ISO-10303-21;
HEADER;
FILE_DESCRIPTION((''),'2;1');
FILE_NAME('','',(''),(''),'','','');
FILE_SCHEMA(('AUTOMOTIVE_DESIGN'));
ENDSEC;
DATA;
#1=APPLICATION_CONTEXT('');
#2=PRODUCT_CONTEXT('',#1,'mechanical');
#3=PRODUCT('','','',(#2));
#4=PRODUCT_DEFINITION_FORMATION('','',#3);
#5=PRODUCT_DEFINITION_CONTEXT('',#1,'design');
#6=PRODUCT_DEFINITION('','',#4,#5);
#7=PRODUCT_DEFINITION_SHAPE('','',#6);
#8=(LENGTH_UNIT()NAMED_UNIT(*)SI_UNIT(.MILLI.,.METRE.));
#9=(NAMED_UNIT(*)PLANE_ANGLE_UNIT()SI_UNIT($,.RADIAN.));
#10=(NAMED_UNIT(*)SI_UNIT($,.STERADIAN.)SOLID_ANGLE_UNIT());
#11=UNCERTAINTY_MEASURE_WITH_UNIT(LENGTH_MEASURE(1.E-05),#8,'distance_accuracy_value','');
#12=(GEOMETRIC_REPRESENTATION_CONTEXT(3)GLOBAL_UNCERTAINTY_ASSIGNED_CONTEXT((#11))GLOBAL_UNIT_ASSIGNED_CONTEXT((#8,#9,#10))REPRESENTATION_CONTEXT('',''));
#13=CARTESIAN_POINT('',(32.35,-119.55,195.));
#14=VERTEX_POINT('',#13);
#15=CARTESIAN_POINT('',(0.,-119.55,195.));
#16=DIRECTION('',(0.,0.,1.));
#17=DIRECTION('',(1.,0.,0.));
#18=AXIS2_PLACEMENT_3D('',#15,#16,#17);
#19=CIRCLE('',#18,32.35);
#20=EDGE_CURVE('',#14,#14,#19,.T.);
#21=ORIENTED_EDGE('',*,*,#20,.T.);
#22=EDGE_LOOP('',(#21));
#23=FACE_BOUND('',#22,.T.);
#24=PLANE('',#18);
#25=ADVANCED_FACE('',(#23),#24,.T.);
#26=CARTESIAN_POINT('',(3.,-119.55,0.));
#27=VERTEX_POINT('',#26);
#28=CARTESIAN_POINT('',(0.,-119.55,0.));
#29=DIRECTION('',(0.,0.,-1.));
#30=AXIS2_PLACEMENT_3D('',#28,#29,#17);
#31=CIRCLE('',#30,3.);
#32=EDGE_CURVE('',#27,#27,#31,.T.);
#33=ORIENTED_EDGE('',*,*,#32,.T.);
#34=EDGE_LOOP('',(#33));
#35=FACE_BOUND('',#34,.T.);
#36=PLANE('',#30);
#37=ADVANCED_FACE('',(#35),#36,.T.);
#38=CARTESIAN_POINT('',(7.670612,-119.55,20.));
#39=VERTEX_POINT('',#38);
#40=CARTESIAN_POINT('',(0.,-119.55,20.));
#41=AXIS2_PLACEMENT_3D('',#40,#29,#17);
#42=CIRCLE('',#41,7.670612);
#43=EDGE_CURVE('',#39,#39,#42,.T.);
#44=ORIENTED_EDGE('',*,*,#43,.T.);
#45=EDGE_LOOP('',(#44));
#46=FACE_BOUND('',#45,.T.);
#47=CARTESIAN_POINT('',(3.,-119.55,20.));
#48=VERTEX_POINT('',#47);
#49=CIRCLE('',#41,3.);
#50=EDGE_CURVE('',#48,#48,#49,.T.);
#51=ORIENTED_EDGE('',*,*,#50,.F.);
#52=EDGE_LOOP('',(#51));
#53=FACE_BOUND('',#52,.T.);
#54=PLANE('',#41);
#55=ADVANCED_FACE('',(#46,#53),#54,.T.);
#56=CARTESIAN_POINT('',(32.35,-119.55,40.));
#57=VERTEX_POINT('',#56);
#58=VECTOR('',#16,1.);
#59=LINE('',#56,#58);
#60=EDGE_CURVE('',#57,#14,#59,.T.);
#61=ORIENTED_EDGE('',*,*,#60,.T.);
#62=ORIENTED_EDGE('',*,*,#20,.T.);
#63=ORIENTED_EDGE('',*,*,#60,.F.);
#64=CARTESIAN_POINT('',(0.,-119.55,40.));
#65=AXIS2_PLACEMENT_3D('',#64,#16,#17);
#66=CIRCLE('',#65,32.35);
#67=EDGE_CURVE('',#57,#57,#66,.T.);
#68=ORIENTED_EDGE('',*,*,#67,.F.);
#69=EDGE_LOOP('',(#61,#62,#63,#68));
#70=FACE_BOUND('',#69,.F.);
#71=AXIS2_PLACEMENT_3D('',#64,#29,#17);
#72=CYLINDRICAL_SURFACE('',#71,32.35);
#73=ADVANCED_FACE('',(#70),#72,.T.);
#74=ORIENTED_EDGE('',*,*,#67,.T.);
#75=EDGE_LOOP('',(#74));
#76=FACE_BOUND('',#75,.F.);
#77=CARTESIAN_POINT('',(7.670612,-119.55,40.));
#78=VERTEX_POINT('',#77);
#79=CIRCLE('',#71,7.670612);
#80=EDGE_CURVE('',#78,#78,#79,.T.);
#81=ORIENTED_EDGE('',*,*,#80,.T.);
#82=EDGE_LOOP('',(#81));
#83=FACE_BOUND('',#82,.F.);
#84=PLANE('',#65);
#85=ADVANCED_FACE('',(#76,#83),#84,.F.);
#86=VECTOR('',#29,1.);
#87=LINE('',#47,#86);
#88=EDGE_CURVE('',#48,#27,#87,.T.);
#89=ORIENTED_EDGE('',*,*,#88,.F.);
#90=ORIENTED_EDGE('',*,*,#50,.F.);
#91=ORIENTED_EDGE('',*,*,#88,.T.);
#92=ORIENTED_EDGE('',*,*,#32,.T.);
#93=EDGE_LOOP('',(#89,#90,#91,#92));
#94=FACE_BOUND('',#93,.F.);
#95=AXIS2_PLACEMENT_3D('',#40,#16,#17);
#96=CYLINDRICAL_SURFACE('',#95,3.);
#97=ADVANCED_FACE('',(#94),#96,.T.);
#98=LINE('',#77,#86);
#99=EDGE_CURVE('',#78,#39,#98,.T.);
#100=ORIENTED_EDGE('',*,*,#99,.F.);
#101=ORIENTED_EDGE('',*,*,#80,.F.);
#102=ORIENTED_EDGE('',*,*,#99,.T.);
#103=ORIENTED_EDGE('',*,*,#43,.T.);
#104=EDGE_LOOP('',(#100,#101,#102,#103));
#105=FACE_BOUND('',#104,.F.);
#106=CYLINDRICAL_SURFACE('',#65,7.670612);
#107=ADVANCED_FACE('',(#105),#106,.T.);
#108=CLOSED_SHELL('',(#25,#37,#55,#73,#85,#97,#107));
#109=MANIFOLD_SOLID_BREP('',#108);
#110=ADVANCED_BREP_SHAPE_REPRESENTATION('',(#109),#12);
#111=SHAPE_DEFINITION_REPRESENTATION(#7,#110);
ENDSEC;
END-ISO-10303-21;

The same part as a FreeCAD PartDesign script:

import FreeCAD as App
import Part
import Sketcher

V = App.Vector

doc = App.newDocument("Part")
body = doc.addObject("PartDesign::Body", "Body")

# Sketch on XY plane
sketch1 = body.newObject("Sketcher::SketchObject", "Sketch")
sketch1.AttachmentSupport = (doc.getObject("XY_Plane"), [""])
sketch1.MapMode = "FlatFace"
sketch1.addGeometry(Part.Circle(V(0, 0, 0), V(0, 0, 1), 32.35), False)
sketch1.addConstraint([
    Sketcher.Constraint("Coincident", 0, 3, -1, 1),
    Sketcher.Constraint("Diameter", 0, 64.7),
])
pad1 = body.newObject("PartDesign::Pad", "Pad")
pad1.Profile = sketch1
pad1.Length = 155

# Sketch on XY plane
sketch2 = body.newObject("Sketcher::SketchObject", "Sketch001")
sketch2.AttachmentSupport = (doc.getObject("XY_Plane"), [""])
sketch2.MapMode = "FlatFace"
sketch2.addGeometry(Part.Circle(V(0, 0, 0), V(0, 0, 1), 7.670612), False)
sketch2.addConstraint([
    Sketcher.Constraint("Coincident", 0, 3, -1, 1),
    Sketcher.Constraint("Diameter", 0, 15.341224),
])
pad2 = body.newObject("PartDesign::Pad", "Pad001")
pad2.Profile = sketch2
pad2.Length = 20
pad2.Reversed = True

# Sketch on XY plane
sketch3 = body.newObject("Sketcher::SketchObject", "Sketch002")
sketch3.AttachmentSupport = (doc.getObject("XY_Plane"), [""])
sketch3.MapMode = "FlatFace"
sketch3.AttachmentOffset = App.Placement(V(0, 0, -20), App.Rotation())
sketch3.addGeometry(Part.Circle(V(0, 0, 0), V(0, 0, 1), 3), False)
sketch3.addConstraint([
    Sketcher.Constraint("Coincident", 0, 3, -1, 1),
    Sketcher.Constraint("Diameter", 0, 6.0),
])
pad3 = body.newObject("PartDesign::Pad", "Pad002")
pad3.Profile = sketch3
pad3.Length = 20
pad3.Reversed = True
body2 = doc.addObject("PartDesign::Body", "Body001")
doc.recompute()

body.Placement = App.Placement(V(0, -119.55, 40), App.Rotation(V(0, 0, 1), 0))
boolean = body2.newObject("PartDesign::Boolean", "Boolean")
boolean.Type = "Fuse"
boolean.addObjects([body])

doc.recompute()
